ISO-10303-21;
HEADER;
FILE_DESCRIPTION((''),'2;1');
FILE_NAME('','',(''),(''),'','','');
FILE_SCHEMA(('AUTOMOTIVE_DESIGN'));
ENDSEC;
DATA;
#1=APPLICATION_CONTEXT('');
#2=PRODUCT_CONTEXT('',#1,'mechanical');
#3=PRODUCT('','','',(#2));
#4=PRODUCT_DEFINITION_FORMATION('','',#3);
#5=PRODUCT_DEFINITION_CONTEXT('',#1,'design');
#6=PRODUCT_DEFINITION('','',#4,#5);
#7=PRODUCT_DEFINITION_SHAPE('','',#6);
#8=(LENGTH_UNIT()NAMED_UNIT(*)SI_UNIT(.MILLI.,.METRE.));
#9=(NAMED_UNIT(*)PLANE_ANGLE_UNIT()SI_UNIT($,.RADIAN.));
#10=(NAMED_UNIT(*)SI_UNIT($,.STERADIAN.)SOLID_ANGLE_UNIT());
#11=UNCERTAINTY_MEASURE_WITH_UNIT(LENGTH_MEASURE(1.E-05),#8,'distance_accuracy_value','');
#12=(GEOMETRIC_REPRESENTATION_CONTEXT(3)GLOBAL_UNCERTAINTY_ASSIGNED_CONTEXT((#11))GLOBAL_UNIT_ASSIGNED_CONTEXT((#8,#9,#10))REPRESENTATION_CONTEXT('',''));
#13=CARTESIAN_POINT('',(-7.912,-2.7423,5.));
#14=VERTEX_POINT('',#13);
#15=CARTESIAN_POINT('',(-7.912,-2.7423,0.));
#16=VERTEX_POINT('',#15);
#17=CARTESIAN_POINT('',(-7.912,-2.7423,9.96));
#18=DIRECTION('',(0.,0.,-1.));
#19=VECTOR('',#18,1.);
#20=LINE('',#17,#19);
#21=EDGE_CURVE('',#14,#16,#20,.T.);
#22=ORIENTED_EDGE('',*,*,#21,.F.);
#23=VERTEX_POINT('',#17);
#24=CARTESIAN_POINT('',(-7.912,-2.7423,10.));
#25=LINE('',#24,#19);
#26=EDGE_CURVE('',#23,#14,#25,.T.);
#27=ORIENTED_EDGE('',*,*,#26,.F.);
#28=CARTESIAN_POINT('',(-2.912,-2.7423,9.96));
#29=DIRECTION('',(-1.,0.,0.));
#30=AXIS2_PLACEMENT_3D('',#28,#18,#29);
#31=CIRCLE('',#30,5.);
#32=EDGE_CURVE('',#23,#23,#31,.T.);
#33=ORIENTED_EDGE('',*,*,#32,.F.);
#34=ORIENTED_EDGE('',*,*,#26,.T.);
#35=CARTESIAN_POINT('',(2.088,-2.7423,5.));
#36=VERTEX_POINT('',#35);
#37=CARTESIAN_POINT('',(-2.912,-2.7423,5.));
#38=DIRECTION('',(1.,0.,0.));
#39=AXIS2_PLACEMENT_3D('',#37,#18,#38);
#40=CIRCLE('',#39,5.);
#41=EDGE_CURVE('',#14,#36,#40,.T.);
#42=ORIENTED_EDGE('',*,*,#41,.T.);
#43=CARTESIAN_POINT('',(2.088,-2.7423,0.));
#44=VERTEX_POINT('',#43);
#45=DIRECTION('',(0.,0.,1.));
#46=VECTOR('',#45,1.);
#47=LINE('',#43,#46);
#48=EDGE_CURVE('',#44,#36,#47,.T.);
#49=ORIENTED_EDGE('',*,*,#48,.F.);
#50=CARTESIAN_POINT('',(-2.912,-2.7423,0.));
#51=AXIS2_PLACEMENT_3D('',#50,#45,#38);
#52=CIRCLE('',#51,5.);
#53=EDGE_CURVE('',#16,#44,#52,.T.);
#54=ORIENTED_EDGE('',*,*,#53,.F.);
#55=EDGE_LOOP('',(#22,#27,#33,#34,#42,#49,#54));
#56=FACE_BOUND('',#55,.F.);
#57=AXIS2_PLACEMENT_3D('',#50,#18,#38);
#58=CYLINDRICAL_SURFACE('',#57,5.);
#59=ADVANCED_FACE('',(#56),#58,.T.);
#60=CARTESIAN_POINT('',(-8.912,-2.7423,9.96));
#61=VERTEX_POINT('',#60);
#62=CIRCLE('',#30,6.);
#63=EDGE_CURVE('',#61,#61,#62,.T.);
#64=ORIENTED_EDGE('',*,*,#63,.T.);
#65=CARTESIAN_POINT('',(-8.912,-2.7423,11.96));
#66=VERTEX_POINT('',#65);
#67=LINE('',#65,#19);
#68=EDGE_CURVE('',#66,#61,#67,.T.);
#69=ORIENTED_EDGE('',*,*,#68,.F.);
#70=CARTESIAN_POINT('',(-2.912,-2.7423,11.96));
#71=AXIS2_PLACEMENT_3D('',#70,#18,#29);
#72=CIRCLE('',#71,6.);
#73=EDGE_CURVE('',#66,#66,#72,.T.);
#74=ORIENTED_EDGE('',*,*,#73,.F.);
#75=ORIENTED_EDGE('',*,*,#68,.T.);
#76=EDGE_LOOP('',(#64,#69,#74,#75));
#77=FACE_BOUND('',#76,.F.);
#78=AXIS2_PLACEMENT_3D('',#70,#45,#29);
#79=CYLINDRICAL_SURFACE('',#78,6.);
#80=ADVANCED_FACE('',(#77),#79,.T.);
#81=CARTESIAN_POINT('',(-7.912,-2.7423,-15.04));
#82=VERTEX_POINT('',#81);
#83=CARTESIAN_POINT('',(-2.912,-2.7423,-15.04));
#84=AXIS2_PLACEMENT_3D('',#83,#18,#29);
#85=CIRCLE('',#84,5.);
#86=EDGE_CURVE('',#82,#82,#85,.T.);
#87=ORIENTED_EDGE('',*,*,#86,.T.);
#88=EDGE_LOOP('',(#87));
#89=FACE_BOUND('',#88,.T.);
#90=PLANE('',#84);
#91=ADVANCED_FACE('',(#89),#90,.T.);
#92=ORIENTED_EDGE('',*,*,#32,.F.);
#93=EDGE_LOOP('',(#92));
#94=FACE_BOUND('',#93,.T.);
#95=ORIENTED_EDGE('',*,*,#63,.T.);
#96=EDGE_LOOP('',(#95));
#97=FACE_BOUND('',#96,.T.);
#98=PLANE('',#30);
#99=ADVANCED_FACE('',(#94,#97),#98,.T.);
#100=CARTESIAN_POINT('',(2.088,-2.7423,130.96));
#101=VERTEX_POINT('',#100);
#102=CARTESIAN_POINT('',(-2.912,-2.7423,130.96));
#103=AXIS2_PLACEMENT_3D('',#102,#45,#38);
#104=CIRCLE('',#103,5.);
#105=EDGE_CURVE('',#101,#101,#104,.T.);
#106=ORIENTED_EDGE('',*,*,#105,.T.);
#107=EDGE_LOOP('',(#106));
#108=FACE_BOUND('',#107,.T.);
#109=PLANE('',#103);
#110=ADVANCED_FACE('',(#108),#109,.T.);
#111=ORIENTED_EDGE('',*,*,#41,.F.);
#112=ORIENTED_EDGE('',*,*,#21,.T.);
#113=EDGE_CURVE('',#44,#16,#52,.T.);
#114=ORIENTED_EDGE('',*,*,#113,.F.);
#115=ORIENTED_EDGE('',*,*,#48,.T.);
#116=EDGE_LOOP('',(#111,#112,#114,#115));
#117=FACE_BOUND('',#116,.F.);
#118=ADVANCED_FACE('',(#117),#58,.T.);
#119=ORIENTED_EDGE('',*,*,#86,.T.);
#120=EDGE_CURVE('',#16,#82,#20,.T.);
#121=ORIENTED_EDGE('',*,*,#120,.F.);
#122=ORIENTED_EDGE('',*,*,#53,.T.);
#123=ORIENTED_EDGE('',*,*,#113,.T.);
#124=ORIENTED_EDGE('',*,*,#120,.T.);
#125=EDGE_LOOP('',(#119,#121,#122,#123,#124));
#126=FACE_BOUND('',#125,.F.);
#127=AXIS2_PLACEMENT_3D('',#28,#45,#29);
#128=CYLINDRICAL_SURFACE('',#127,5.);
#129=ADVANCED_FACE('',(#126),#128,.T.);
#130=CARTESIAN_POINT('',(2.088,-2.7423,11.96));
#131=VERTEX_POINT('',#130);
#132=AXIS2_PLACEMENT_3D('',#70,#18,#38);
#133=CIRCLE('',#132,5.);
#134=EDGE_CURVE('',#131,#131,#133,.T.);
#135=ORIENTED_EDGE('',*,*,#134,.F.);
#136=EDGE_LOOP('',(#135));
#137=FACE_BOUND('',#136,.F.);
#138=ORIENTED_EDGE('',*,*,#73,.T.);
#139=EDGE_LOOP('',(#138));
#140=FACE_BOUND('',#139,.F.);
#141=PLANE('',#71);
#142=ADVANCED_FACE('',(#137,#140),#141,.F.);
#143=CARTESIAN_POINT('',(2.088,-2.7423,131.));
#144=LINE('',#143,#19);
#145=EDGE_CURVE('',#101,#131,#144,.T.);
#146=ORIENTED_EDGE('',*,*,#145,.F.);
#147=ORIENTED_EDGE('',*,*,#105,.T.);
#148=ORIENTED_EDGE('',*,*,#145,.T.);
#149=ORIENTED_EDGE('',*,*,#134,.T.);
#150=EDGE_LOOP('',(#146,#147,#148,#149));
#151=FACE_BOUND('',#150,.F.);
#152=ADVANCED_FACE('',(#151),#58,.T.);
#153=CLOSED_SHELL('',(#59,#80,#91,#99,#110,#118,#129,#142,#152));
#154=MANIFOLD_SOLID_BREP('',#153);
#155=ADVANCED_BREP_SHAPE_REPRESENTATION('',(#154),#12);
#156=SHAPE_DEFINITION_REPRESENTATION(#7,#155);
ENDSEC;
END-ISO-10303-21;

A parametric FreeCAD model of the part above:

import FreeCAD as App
import Part
import Sketcher
from FreeCAD import Vector
Q = App.Units.Quantity

doc = App.newDocument("Part")
body = doc.addObject("PartDesign::Body", "Body")
body.AllowCompound = True

sketch1 = doc.addObject("Sketcher::SketchObject", "Sketch")
body.addObject(sketch1)
sketch1.AttachmentSupport = (doc.XY_Plane, [""])
sketch1.MapMode = "FlatFace"
sketch1.addGeometry(Part.Circle(Vector(-3, -3, 0), Vector(0, 0, 1), 5), False)
sketch1.addConstraint([
    Sketcher.Constraint("Diameter", 0, Q("10 mm")),
    Sketcher.Constraint("DistanceX", 0, 3, -1, 1, Q("2.912 mm")),
    Sketcher.Constraint("DistanceY", 0, 3, -1, 1, Q("2.7423 mm")),
])
pad1 = doc.addObject("PartDesign::Pad", "Pad")
body.addObject(pad1)
pad1.Profile = sketch1
pad1.Length = 120

sketch2 = doc.addObject("Sketcher::SketchObject", "Sketch001")
body.addObject(sketch2)
sketch2.AttachmentSupport = (doc.XY_Plane, [""])
sketch2.MapMode = "FlatFace"
sketch2.AttachmentOffset = App.Placement(Vector(0, 0, 5), App.Rotation())
sketch2.addGeometry([
    Part.Circle(Vector(-2.9, -2.7, 0), Vector(0, 0, 1), 5),
    Part.Circle(Vector(-2.9, -2.7, 0), Vector(0, 0, 1), 4.3),
], False)
sketch2.addConstraint([
    Sketcher.Constraint("Coincident", 1, 3, 0, 3),
    Sketcher.Constraint("Diameter", 0, Q("10 mm")),
    Sketcher.Constraint("Diameter", 1, Q("8.568 mm")),
    Sketcher.Constraint("DistanceX", 0, 3, -1, 1, Q("2.912 mm")),
    Sketcher.Constraint("DistanceY", 0, 3, -1, 1, Q("2.7423 mm")),
])
pocket1 = doc.addObject("PartDesign::Pocket", "Pocket")
body.addObject(pocket1)
pocket1.Profile = sketch2
pocket1.Length = 6.96
pocket1.Reversed = True

sketch3 = doc.addObject("Sketcher::SketchObject", "Sketch002")
body.addObject(sketch3)
sketch3.AttachmentSupport = (doc.XY_Plane, [""])
sketch3.MapMode = "FlatFace"
sketch3.AttachmentOffset = App.Placement(Vector(0, 0, 5), App.Rotation())
sketch3.addGeometry(Part.Circle(Vector(-2.9, -2.7, 0), Vector(0, 0, 1), 4.3), False)
sketch3.addConstraint([
    Sketcher.Constraint("Diameter", 0, Q("8.568 mm")),
    Sketcher.Constraint("DistanceX", 0, 3, -1, 1, Q("2.912 mm")),
    Sketcher.Constraint("DistanceY", 0, 3, -1, 1, Q("2.7423 mm")),
])
pocket2 = doc.addObject("PartDesign::Pocket", "Pocket001")
body.addObject(pocket2)
pocket2.Profile = sketch3
pocket2.Length = 5
pocket2.Reversed = True

sketch4 = doc.addObject("Sketcher::SketchObject", "Sketch003")
body.addObject(sketch4)
sketch4.AttachmentSupport = (doc.XY_Plane, [""])
sketch4.MapMode = "FlatFace"
sketch4.AttachmentOffset = App.Placement(Vector(0, 0, 10), App.Rotation())
sketch4.addGeometry(Part.Circle(Vector(-3, -3, 0), Vector(0, 0, 1), 5), False)
sketch4.addConstraint([
    Sketcher.Constraint("Diameter", 0, Q("10 mm")),
    Sketcher.Constraint("DistanceX", 0, 3, -1, 1, Q("2.912 mm")),
    Sketcher.Constraint("DistanceY", 0, 3, -1, 1, Q("2.7423 mm")),
])
pad2 = doc.addObject("PartDesign::Pad", "Pad001")
body.addObject(pad2)
pad2.Profile = sketch4
pad2.Length = 10
pad2.Reversed = True

sketch5 = doc.addObject("Sketcher::SketchObject", "Sketch004")
body.addObject(sketch5)
sketch5.AttachmentSupport = (doc.XY_Plane, [""])
sketch5.MapMode = "FlatFace"
sketch5.AttachmentOffset = App.Placement(Vector(0, 0, 11.96), App.Rotation())
sketch5.addGeometry(Part.Circle(Vector(-3, -3, 0), Vector(0, 0, 1), 6), False)
sketch5.addConstraint([
    Sketcher.Constraint("Diameter", 0, Q("12 mm")),
    Sketcher.Constraint("DistanceX", 0, 3, -1, 1, Q("2.912 mm")),
    Sketcher.Constraint("DistanceY", 0, 3, -1, 1, Q("2.7423 mm")),
])
pad3 = doc.addObject("PartDesign::Pad", "Pad002")
body.addObject(pad3)
pad3.Profile = sketch5
pad3.Length = 2
pad3.Reversed = True

sketch6 = doc.addObject("Sketcher::SketchObject", "Sketch005")
body.addObject(sketch6)
sketch6.AttachmentSupport = (doc.XY_Plane, [""])
sketch6.MapMode = "FlatFace"
sketch6.AttachmentOffset = App.Placement(Vector(0, 0, 9.96), App.Rotation())
sketch6.addGeometry(Part.Circle(Vector(-3, -3, 0), Vector(0, 0, 1), 5), False)
sketch6.addConstraint([
    Sketcher.Constraint("Diameter", 0, Q("10 mm")),
    Sketcher.Constraint("DistanceX", 0, 3, -1, 1, Q("2.912 mm")),
    Sketcher.Constraint("DistanceY", 0, 3, -1, 1, Q("2.7423 mm")),
])
pad4 = doc.addObject("PartDesign::Pad", "Pad003")
body.addObject(pad4)
pad4.Profile = sketch6
pad4.Length = 25
pad4.Reversed = True

sketch7 = doc.addObject("Sketcher::SketchObject", "Sketch006")
body.addObject(sketch7)
sketch7.AttachmentSupport = (doc.XY_Plane, [""])
sketch7.MapMode = "FlatFace"
sketch7.AttachmentOffset = App.Placement(Vector(0, 0, 116), App.Rotation())
sketch7.addGeometry(Part.Circle(Vector(-3, -3, 0), Vector(0, 0, 1), 5), False)
sketch7.addConstraint([
    Sketcher.Constraint("Diameter", 0, Q("10 mm")),
    Sketcher.Constraint("DistanceX", 0, 3, -1, 1, Q("2.912 mm")),
    Sketcher.Constraint("DistanceY", 0, 3, -1, 1, Q("2.7423 mm")),
])
pad5 = doc.addObject("PartDesign::Pad", "Pad004")
body.addObject(pad5)
pad5.Profile = sketch7
pad5.Length = 15

sketch8 = doc.addObject("Sketcher::SketchObject", "Sketch007")
body.addObject(sketch8)
sketch8.AttachmentSupport = (doc.XY_Plane, [""])
sketch8.MapMode = "FlatFace"
sketch8.AttachmentOffset = App.Placement(Vector(0, 0, 131), App.Rotation())
sketch8.addGeometry(Part.Circle(Vector(-3, -3, 0), Vector(0, 0, 1), 5), False)
sketch8.addConstraint([
    Sketcher.Constraint("Diameter", 0, Q("10 mm")),
    Sketcher.Constraint("DistanceX", 0, 3, -1, 1, Q("2.912 mm")),
    Sketcher.Constraint("DistanceY", 0, 3, -1, 1, Q("2.7423 mm")),
])
pocket3 = doc.addObject("PartDesign::Pocket", "Pocket002")
body.addObject(pocket3)
pocket3.Profile = sketch8
pocket3.Length = 0.04

doc.recompute()
